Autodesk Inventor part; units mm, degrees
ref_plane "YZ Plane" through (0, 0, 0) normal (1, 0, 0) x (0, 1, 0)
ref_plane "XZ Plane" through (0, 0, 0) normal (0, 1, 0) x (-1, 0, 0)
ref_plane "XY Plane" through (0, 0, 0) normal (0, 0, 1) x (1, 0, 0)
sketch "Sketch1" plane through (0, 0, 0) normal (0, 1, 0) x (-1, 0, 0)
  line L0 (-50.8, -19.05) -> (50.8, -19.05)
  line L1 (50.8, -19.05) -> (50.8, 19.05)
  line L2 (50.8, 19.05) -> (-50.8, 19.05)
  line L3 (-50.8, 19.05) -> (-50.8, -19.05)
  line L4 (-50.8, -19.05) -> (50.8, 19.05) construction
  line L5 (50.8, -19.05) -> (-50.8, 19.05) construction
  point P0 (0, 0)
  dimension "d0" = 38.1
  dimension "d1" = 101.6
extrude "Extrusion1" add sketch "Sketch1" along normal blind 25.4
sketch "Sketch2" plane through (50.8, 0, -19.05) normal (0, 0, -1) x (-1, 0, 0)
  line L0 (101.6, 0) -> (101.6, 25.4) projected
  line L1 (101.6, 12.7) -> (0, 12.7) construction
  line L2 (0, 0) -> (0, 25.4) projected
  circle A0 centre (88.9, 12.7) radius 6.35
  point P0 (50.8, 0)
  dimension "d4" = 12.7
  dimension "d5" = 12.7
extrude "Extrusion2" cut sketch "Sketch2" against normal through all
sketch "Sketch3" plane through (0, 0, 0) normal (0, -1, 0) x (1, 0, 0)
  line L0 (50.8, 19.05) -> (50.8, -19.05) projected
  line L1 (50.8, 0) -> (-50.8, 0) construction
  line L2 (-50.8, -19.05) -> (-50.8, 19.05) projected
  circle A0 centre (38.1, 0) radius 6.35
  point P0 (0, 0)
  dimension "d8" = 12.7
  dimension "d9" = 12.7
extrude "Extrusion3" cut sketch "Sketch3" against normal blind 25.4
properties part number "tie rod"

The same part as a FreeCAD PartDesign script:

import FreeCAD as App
import Part
import Sketcher

V = App.Vector
Q = App.Units.Quantity

doc = App.newDocument("Part")
body = doc.addObject("PartDesign::Body", "Body")

sketch1 = body.newObject("Sketcher::SketchObject", "Sketch")
sketch1.AttachmentSupport = (doc.getObject("XZ_Plane"), [""])
sketch1.MapMode = "FlatFace"
sketch1.addGeometry(Part.LineSegment(V(51, 19, 0), V(51, -19, 0)), False)
sketch1.addGeometry(Part.LineSegment(V(51, -19, 0), V(-51, -19, 0)), False)
sketch1.addGeometry(Part.LineSegment(V(-51, -19, 0), V(-51, 19, 0)), False)
sketch1.addGeometry(Part.LineSegment(V(-51, 19, 0), V(51, 19, 0)), False)
sketch1.addConstraint(Sketcher.Constraint("Coincident", 0, 2, 1, 1))
sketch1.addConstraint(Sketcher.Constraint("Coincident", 1, 2, 2, 1))
sketch1.addConstraint(Sketcher.Constraint("Coincident", 2, 2, 3, 1))
sketch1.addConstraint(Sketcher.Constraint("Coincident", 3, 2, 0, 1))
sketch1.addConstraint(Sketcher.Constraint("Vertical", 0))
sketch1.addConstraint(Sketcher.Constraint("Horizontal", 1))
sketch1.addConstraint(Sketcher.Constraint("Vertical", 2))
sketch1.addConstraint(Sketcher.Constraint("Horizontal", 3))
sketch1.addConstraint(Sketcher.Constraint("Symmetric", 0, 2, 2, 2, -1, 1))
sketch1.addConstraint(Sketcher.Constraint("DistanceX", 1, 2, 1, 1, Q("4 in")))
sketch1.addConstraint(Sketcher.Constraint("DistanceY", 0, 2, 0, 1, Q("1.5 in")))
pad1 = body.newObject("PartDesign::Pad", "Pad")
pad1.Profile = sketch1
pad1.Length = Q("1 in")
pad1.Reversed = True

sketch2 = body.newObject("Sketcher::SketchObject", "Sketch001")
sketch2.AttachmentSupport = (doc.getObject("XY_Plane"), [""])
sketch2.MapMode = "FlatFace"
sketch2.AttachmentOffset = App.Placement(V(0, 0, -0.75 * 25.4), App.Rotation())
sketch2.addGeometry(Part.Circle(V(-38, 13, 0), V(0, 0, 1), 6), False)
sketch2.addConstraint(Sketcher.Constraint("Diameter", 0, Q("0.5 in")))
sketch2.addConstraint(Sketcher.Constraint("DistanceY", -1, 1, 0, 3, Q("0.5 in")))
sketch2.addConstraint(Sketcher.Constraint("DistanceX", 0, 3, -1, 1, Q("1.5 in")))
pocket1 = body.newObject("PartDesign::Pocket", "Pocket")
pocket1.Profile = sketch2
pocket1.Type = "ThroughAll"
pocket1.Reversed = True

sketch3 = body.newObject("Sketcher::SketchObject", "Sketch002")
sketch3.AttachmentSupport = (doc.getObject("XZ_Plane"), [""])
sketch3.MapMode = "FlatFace"
sketch3.addGeometry(Part.Circle(V(38, 0, 0), V(0, 0, 1), 6), False)
sketch3.addConstraint(Sketcher.Constraint("PointOnObject", 0, 3, -1))
sketch3.addConstraint(Sketcher.Constraint("Diameter", 0, Q("0.5 in")))
sketch3.addConstraint(Sketcher.Constraint("DistanceX", -1, 1, 0, 3, Q("1.5 in")))
pocket2 = body.newObject("PartDesign::Pocket", "Pocket001")
pocket2.Profile = sketch3
pocket2.Length = Q("1 in")

doc.recompute()
